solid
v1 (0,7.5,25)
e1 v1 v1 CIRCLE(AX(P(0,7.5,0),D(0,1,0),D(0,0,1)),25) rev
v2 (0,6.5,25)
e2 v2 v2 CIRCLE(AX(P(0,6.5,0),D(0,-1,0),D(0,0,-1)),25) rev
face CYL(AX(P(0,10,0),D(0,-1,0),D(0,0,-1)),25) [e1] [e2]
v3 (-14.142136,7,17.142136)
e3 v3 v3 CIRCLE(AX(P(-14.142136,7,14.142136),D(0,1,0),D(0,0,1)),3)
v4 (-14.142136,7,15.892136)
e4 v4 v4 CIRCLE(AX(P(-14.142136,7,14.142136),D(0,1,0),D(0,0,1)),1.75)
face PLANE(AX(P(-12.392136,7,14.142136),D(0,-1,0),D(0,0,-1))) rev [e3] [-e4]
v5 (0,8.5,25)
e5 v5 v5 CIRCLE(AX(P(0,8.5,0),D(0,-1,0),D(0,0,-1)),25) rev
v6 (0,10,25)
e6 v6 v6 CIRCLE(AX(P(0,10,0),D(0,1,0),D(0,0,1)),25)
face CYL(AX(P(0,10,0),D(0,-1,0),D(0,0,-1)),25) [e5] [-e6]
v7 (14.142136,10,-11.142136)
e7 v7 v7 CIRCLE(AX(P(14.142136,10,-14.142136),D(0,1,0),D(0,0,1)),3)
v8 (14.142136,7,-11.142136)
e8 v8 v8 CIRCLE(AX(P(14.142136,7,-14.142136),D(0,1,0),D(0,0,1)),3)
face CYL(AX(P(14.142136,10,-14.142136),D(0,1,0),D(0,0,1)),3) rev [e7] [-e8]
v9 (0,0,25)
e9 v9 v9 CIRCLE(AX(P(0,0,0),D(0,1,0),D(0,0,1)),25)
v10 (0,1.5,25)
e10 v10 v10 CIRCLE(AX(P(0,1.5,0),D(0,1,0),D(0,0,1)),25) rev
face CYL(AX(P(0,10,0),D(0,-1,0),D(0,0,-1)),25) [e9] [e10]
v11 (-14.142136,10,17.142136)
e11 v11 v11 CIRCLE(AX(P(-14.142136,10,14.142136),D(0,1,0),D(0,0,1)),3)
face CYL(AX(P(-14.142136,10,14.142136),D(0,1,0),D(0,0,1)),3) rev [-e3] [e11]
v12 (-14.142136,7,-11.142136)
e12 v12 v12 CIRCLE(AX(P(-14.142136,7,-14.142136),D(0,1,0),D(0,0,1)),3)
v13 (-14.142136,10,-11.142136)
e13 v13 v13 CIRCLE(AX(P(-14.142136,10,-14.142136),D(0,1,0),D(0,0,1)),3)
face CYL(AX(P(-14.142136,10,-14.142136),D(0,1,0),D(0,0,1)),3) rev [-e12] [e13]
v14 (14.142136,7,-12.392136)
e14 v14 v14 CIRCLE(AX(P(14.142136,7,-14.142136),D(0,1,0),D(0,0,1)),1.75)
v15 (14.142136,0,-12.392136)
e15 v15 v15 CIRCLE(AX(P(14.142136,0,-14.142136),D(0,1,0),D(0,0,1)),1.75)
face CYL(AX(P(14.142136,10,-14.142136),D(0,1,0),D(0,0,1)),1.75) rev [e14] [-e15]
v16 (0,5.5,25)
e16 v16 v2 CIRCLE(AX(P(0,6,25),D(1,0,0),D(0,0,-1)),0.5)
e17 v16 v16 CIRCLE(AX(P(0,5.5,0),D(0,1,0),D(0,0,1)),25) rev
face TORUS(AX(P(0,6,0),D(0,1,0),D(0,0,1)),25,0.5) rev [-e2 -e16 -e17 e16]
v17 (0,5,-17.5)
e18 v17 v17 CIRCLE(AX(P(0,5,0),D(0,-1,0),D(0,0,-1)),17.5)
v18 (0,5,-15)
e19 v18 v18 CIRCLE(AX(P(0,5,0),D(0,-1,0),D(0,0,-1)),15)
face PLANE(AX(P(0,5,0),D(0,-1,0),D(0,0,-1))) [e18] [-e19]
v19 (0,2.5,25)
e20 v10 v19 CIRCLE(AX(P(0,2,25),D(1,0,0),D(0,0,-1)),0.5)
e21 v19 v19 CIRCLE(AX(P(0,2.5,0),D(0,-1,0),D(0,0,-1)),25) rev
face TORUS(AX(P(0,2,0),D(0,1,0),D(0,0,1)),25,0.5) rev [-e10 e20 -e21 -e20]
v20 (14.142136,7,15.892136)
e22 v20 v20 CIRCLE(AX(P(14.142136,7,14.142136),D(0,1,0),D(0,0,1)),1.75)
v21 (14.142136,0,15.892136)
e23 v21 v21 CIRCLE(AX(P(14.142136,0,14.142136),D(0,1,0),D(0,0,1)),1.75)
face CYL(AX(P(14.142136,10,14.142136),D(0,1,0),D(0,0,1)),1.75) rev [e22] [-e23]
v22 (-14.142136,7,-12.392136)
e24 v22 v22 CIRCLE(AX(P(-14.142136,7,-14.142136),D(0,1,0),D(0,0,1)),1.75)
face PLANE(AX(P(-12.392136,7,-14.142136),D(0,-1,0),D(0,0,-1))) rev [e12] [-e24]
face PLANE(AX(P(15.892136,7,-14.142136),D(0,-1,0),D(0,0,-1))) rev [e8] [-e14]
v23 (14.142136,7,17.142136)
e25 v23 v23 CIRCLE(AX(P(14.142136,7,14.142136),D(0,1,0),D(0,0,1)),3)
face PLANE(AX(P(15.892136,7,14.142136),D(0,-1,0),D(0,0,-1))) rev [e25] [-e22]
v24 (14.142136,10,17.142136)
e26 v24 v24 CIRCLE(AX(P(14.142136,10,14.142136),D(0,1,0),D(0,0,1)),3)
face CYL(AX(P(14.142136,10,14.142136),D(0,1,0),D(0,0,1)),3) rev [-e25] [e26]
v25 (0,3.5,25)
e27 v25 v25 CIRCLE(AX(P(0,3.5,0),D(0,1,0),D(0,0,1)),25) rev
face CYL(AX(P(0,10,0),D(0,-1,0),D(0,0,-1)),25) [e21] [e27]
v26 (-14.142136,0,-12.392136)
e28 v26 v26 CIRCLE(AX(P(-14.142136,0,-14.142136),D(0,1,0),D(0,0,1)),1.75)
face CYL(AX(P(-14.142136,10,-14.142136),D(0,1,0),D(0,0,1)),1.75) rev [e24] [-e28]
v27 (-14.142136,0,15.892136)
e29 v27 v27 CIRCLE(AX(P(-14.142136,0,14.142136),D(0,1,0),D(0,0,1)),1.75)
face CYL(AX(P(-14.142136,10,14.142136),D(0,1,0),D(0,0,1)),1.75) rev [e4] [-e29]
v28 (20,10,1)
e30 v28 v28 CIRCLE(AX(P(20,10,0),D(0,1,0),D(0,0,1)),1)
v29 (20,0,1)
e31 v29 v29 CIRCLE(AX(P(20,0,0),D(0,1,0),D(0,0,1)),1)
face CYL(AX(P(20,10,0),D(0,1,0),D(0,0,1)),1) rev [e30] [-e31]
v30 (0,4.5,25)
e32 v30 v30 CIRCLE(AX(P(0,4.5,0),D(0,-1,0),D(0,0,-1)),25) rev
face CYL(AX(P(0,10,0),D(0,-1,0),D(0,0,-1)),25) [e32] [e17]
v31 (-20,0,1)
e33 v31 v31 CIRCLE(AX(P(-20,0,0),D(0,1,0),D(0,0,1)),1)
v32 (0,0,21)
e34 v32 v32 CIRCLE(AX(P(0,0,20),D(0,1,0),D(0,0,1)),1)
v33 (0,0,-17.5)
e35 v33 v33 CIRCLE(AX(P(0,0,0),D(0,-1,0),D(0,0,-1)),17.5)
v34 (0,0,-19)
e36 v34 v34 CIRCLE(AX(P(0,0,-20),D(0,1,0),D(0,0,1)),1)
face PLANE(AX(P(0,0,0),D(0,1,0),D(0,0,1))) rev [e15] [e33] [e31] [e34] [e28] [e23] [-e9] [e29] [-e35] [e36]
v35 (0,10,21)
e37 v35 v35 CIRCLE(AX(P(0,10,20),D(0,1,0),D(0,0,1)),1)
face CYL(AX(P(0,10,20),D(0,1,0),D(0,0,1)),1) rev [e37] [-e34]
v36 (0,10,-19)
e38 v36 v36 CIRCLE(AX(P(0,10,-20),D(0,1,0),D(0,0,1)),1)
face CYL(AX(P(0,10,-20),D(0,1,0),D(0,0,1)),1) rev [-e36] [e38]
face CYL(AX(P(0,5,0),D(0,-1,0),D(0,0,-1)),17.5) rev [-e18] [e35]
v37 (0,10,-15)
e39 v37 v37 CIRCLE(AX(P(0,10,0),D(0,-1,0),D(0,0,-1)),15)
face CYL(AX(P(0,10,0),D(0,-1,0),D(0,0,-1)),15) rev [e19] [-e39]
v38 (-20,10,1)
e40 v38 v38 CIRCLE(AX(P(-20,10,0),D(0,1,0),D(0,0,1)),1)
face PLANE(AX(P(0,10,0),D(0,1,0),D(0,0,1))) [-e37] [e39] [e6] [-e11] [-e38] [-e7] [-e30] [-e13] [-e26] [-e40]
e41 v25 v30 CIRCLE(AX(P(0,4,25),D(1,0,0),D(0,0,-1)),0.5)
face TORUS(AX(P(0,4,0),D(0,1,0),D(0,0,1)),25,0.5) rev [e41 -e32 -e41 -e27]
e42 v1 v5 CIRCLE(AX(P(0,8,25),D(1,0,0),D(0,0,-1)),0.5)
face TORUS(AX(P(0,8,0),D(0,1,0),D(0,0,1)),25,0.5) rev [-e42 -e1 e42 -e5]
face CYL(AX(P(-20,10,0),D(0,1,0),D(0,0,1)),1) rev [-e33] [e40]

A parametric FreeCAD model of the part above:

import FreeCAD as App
import Part
import Sketcher
from FreeCAD import Vector
Q = App.Units.Quantity

doc = App.newDocument("Part")
params = doc.addObject("Spreadsheet::Sheet", "Params")
for row, (alias, value) in enumerate([
    ("sketch1_diameter", "50 mm"),
    ("pad1_length", "10 mm"),
    ("sketch2_diameter", "2 mm"),
    ("hole_diameter", "2 mm"),
    ("sketch3_diameter", "35 mm"),
    ("pocket1_length", "5 mm"),
    ("sketch4_diameter", "30 mm"),
    ("pocket2_length", "5 mm"),
    ("sketch5_diameter", "3.5 mm"),
    ("hole2_diameter", "3.5 mm"),
    ("hole2_cbore_diameter", "6 mm"),
    ("hole2_cbore_depth", "3 mm"),
    ("sketch6_diameter", "1 mm"),
    ("sketch7_diameter", "50 mm"),
    ("linearpattern_pitch", "2 mm"),
], start=1):
    params.set(f"A{row}", alias)
    params.set(f"B{row}", "=" + value)
    params.setAlias(f"B{row}", alias)

body = doc.addObject("PartDesign::Body", "Body")

# Sketch on XZ plane
sketch1 = body.newObject("Sketcher::SketchObject", "Sketch")
sketch1.AttachmentSupport = (doc.getObject("XZ_Plane"), [""])
sketch1.MapMode = "FlatFace"
sketch1.addGeometry(Part.Circle(Vector(0, 0, 0), Vector(0, 0, 1), 25), False)
sketch1.addConstraint([
    Sketcher.Constraint("Coincident", 0, 3, -1, 1),
    Sketcher.Constraint("Diameter", 0, Q("50 mm")),
])
sketch1.setExpression("Constraints[1]", "Params.sketch1_diameter")
pad1 = body.newObject("PartDesign::Pad", "Pad")
pad1.Profile = sketch1
pad1.setExpression("Length", "Params.pad1_length")
pad1.Reversed = True

# Sketch on XZ plane
sketch2 = body.newObject("Sketcher::SketchObject", "Sketch001")
sketch2.AttachmentSupport = (doc.getObject("XZ_Plane"), [""])
sketch2.MapMode = "FlatFace"
sketch2.AttachmentOffset = App.Placement(Vector(0, 0, -10), App.Rotation())
sketch2.addGeometry([
    Part.Circle(Vector(0, 20, 0), Vector(0, 0, 1), 1),
    Part.Circle(Vector(20, 0, 0), Vector(0, 0, 1), 1),
    Part.Circle(Vector(0, -20, 0), Vector(0, 0, 1), 1),
    Part.Circle(Vector(-20, 0, 0), Vector(0, 0, 1), 1),
], False)
sketch2.addConstraint([
    Sketcher.Constraint("Equal", 0, 1),
    Sketcher.Constraint("Equal", 1, 2),
    Sketcher.Constraint("Equal", 2, 3),
    Sketcher.Constraint("Symmetric", 0, 3, 2, 3, -1, 1),
    Sketcher.Constraint("Symmetric", 1, 3, 3, 3, -1, 1),
    Sketcher.Constraint("PointOnObject", 0, 3, -2),
    Sketcher.Constraint("PointOnObject", 1, 3, -1),
    Sketcher.Constraint("Diameter", 0, Q("2 mm")),
    Sketcher.Constraint("DistanceY", -1, 1, 0, 3, Q("20 mm")),
    Sketcher.Constraint("DistanceX", -1, 1, 1, 3, Q("20 mm")),
])
sketch2.setExpression("Constraints[7]", "Params.sketch2_diameter")
doc.recompute()
hole = body.newObject("PartDesign::Hole", "Hole")
hole.Profile = sketch2
hole.ThreadType = "None"
hole.setExpression("Diameter", "Params.hole_diameter")
hole.DepthType = "ThroughAll"
hole.Reversed = True

# Sketch on XZ plane
sketch3 = body.newObject("Sketcher::SketchObject", "Sketch002")
sketch3.AttachmentSupport = (doc.getObject("XZ_Plane"), [""])
sketch3.MapMode = "FlatFace"
sketch3.addGeometry(Part.Circle(Vector(0, 0, 0), Vector(0, 0, 1), 17.5), False)
sketch3.addConstraint([
    Sketcher.Constraint("Coincident", 0, 3, -1, 1),
    Sketcher.Constraint("Diameter", 0, Q("35 mm")),
])
sketch3.setExpression("Constraints[1]", "Params.sketch3_diameter")
pocket1 = body.newObject("PartDesign::Pocket", "Pocket")
pocket1.Profile = sketch3
pocket1.setExpression("Length", "Params.pocket1_length")

# Sketch on XZ plane
sketch4 = body.newObject("Sketcher::SketchObject", "Sketch003")
sketch4.AttachmentSupport = (doc.getObject("XZ_Plane"), [""])
sketch4.MapMode = "FlatFace"
sketch4.AttachmentOffset = App.Placement(Vector(0, 0, -5), App.Rotation())
sketch4.addGeometry(Part.Circle(Vector(0, 0, 0), Vector(0, 0, 1), 15), False)
sketch4.addConstraint([
    Sketcher.Constraint("Coincident", 0, 3, -1, 1),
    Sketcher.Constraint("Diameter", 0, Q("30 mm")),
])
sketch4.setExpression("Constraints[1]", "Params.sketch4_diameter")
pocket2 = body.newObject("PartDesign::Pocket", "Pocket001")
pocket2.Profile = sketch4
pocket2.setExpression("Length", "Params.pocket2_length")

# Sketch on XZ plane
sketch5 = body.newObject("Sketcher::SketchObject", "Sketch004")
sketch5.AttachmentSupport = (doc.getObject("XZ_Plane"), [""])
sketch5.MapMode = "FlatFace"
sketch5.AttachmentOffset = App.Placement(Vector(0, 0, -10), App.Rotation())
sketch5.addGeometry([
    Part.Circle(Vector(-14.142136, -14.142136, 0), Vector(0, 0, 1), 1.75),
    Part.Circle(Vector(14.142136, -14.142136, 0), Vector(0, 0, 1), 1.75),
    Part.Circle(Vector(14.142136, 14.142136, 0), Vector(0, 0, 1), 1.75),
    Part.Circle(Vector(-14.142136, 14.142136, 0), Vector(0, 0, 1), 1.75),
], False)
sketch5.addConstraint([
    Sketcher.Constraint("Equal", 0, 1),
    Sketcher.Constraint("Equal", 1, 2),
    Sketcher.Constraint("Equal", 2, 3),
    Sketcher.Constraint("Symmetric", 0, 3, 2, 3, -1, 1),
    Sketcher.Constraint("Symmetric", 1, 3, 3, 3, -1, 1),
    Sketcher.Constraint("Symmetric", 0, 3, 1, 3, -2),
    Sketcher.Constraint("Diameter", 0, Q("3.5 mm")),
    Sketcher.Constraint("DistanceX", 0, 3, 1, 3, Q("28.284271 mm")),
    Sketcher.Constraint("DistanceY", 1, 3, 2, 3, Q("28.284271 mm")),
])
sketch5.setExpression("Constraints[6]", "Params.sketch5_diameter")
doc.recompute()
hole2 = body.newObject("PartDesign::Hole", "Hole001")
hole2.Profile = sketch5
hole2.ThreadType = "None"
hole2.setExpression("Diameter", "Params.hole2_diameter")
hole2.DepthType = "ThroughAll"
hole2.HoleCutType = "Counterbore"
hole2.setExpression("HoleCutDiameter", "Params.hole2_cbore_diameter")
hole2.setExpression("HoleCutDepth", "Params.hole2_cbore_depth")
hole2.Reversed = True

# Sketch on XY plane
sketch6 = body.newObject("Sketcher::SketchObject", "Sketch005")
sketch6.AttachmentSupport = (doc.getObject("XY_Plane"), [""])
sketch6.MapMode = "FlatFace"
sketch6.addGeometry(Part.Circle(Vector(25, 2, 0), Vector(0, 0, 1), 0.5), False)
sketch6.addConstraint([
    Sketcher.Constraint("Diameter", 0, Q("1 mm")),
    Sketcher.Constraint("DistanceX", -1, 1, 0, 3, Q("25 mm")),
    Sketcher.Constraint("DistanceY", -1, 1, 0, 3, Q("2 mm")),
])
sketch6.setExpression("Constraints[0]", "Params.sketch6_diameter")

# Sketch on XZ plane
sketch7 = body.newObject("Sketcher::SketchObject", "Sketch006")
sketch7.AttachmentSupport = (doc.getObject("XZ_Plane"), [""])
sketch7.MapMode = "FlatFace"
sketch7.AttachmentOffset = App.Placement(Vector(0, 0, -2), App.Rotation())
sketch7.addGeometry(Part.Circle(Vector(0, 0, 0), Vector(0, 0, 1), 25), False)
sketch7.addConstraint([
    Sketcher.Constraint("Coincident", 0, 3, -1, 1),
    Sketcher.Constraint("Diameter", 0, Q("50 mm")),
])
sketch7.setExpression("Constraints[1]", "Params.sketch7_diameter")
doc.recompute()

subtractivepipe = body.newObject("PartDesign::SubtractivePipe", "SubtractivePipe")
subtractivepipe.Profile = sketch6
subtractivepipe.Spine = (sketch7, ["Edge1"])
doc.recompute()

linearpattern = body.newObject("PartDesign::LinearPattern", "LinearPattern")
linearpattern.Originals = [subtractivepipe]
linearpattern.Direction = (doc.getObject("Y_Axis"), [""])
linearpattern.Mode = "offset"
linearpattern.setExpression("Offset", "Params.linearpattern_pitch")
linearpattern.Occurrences = 4
body.Tip = linearpattern

doc.recompute()
